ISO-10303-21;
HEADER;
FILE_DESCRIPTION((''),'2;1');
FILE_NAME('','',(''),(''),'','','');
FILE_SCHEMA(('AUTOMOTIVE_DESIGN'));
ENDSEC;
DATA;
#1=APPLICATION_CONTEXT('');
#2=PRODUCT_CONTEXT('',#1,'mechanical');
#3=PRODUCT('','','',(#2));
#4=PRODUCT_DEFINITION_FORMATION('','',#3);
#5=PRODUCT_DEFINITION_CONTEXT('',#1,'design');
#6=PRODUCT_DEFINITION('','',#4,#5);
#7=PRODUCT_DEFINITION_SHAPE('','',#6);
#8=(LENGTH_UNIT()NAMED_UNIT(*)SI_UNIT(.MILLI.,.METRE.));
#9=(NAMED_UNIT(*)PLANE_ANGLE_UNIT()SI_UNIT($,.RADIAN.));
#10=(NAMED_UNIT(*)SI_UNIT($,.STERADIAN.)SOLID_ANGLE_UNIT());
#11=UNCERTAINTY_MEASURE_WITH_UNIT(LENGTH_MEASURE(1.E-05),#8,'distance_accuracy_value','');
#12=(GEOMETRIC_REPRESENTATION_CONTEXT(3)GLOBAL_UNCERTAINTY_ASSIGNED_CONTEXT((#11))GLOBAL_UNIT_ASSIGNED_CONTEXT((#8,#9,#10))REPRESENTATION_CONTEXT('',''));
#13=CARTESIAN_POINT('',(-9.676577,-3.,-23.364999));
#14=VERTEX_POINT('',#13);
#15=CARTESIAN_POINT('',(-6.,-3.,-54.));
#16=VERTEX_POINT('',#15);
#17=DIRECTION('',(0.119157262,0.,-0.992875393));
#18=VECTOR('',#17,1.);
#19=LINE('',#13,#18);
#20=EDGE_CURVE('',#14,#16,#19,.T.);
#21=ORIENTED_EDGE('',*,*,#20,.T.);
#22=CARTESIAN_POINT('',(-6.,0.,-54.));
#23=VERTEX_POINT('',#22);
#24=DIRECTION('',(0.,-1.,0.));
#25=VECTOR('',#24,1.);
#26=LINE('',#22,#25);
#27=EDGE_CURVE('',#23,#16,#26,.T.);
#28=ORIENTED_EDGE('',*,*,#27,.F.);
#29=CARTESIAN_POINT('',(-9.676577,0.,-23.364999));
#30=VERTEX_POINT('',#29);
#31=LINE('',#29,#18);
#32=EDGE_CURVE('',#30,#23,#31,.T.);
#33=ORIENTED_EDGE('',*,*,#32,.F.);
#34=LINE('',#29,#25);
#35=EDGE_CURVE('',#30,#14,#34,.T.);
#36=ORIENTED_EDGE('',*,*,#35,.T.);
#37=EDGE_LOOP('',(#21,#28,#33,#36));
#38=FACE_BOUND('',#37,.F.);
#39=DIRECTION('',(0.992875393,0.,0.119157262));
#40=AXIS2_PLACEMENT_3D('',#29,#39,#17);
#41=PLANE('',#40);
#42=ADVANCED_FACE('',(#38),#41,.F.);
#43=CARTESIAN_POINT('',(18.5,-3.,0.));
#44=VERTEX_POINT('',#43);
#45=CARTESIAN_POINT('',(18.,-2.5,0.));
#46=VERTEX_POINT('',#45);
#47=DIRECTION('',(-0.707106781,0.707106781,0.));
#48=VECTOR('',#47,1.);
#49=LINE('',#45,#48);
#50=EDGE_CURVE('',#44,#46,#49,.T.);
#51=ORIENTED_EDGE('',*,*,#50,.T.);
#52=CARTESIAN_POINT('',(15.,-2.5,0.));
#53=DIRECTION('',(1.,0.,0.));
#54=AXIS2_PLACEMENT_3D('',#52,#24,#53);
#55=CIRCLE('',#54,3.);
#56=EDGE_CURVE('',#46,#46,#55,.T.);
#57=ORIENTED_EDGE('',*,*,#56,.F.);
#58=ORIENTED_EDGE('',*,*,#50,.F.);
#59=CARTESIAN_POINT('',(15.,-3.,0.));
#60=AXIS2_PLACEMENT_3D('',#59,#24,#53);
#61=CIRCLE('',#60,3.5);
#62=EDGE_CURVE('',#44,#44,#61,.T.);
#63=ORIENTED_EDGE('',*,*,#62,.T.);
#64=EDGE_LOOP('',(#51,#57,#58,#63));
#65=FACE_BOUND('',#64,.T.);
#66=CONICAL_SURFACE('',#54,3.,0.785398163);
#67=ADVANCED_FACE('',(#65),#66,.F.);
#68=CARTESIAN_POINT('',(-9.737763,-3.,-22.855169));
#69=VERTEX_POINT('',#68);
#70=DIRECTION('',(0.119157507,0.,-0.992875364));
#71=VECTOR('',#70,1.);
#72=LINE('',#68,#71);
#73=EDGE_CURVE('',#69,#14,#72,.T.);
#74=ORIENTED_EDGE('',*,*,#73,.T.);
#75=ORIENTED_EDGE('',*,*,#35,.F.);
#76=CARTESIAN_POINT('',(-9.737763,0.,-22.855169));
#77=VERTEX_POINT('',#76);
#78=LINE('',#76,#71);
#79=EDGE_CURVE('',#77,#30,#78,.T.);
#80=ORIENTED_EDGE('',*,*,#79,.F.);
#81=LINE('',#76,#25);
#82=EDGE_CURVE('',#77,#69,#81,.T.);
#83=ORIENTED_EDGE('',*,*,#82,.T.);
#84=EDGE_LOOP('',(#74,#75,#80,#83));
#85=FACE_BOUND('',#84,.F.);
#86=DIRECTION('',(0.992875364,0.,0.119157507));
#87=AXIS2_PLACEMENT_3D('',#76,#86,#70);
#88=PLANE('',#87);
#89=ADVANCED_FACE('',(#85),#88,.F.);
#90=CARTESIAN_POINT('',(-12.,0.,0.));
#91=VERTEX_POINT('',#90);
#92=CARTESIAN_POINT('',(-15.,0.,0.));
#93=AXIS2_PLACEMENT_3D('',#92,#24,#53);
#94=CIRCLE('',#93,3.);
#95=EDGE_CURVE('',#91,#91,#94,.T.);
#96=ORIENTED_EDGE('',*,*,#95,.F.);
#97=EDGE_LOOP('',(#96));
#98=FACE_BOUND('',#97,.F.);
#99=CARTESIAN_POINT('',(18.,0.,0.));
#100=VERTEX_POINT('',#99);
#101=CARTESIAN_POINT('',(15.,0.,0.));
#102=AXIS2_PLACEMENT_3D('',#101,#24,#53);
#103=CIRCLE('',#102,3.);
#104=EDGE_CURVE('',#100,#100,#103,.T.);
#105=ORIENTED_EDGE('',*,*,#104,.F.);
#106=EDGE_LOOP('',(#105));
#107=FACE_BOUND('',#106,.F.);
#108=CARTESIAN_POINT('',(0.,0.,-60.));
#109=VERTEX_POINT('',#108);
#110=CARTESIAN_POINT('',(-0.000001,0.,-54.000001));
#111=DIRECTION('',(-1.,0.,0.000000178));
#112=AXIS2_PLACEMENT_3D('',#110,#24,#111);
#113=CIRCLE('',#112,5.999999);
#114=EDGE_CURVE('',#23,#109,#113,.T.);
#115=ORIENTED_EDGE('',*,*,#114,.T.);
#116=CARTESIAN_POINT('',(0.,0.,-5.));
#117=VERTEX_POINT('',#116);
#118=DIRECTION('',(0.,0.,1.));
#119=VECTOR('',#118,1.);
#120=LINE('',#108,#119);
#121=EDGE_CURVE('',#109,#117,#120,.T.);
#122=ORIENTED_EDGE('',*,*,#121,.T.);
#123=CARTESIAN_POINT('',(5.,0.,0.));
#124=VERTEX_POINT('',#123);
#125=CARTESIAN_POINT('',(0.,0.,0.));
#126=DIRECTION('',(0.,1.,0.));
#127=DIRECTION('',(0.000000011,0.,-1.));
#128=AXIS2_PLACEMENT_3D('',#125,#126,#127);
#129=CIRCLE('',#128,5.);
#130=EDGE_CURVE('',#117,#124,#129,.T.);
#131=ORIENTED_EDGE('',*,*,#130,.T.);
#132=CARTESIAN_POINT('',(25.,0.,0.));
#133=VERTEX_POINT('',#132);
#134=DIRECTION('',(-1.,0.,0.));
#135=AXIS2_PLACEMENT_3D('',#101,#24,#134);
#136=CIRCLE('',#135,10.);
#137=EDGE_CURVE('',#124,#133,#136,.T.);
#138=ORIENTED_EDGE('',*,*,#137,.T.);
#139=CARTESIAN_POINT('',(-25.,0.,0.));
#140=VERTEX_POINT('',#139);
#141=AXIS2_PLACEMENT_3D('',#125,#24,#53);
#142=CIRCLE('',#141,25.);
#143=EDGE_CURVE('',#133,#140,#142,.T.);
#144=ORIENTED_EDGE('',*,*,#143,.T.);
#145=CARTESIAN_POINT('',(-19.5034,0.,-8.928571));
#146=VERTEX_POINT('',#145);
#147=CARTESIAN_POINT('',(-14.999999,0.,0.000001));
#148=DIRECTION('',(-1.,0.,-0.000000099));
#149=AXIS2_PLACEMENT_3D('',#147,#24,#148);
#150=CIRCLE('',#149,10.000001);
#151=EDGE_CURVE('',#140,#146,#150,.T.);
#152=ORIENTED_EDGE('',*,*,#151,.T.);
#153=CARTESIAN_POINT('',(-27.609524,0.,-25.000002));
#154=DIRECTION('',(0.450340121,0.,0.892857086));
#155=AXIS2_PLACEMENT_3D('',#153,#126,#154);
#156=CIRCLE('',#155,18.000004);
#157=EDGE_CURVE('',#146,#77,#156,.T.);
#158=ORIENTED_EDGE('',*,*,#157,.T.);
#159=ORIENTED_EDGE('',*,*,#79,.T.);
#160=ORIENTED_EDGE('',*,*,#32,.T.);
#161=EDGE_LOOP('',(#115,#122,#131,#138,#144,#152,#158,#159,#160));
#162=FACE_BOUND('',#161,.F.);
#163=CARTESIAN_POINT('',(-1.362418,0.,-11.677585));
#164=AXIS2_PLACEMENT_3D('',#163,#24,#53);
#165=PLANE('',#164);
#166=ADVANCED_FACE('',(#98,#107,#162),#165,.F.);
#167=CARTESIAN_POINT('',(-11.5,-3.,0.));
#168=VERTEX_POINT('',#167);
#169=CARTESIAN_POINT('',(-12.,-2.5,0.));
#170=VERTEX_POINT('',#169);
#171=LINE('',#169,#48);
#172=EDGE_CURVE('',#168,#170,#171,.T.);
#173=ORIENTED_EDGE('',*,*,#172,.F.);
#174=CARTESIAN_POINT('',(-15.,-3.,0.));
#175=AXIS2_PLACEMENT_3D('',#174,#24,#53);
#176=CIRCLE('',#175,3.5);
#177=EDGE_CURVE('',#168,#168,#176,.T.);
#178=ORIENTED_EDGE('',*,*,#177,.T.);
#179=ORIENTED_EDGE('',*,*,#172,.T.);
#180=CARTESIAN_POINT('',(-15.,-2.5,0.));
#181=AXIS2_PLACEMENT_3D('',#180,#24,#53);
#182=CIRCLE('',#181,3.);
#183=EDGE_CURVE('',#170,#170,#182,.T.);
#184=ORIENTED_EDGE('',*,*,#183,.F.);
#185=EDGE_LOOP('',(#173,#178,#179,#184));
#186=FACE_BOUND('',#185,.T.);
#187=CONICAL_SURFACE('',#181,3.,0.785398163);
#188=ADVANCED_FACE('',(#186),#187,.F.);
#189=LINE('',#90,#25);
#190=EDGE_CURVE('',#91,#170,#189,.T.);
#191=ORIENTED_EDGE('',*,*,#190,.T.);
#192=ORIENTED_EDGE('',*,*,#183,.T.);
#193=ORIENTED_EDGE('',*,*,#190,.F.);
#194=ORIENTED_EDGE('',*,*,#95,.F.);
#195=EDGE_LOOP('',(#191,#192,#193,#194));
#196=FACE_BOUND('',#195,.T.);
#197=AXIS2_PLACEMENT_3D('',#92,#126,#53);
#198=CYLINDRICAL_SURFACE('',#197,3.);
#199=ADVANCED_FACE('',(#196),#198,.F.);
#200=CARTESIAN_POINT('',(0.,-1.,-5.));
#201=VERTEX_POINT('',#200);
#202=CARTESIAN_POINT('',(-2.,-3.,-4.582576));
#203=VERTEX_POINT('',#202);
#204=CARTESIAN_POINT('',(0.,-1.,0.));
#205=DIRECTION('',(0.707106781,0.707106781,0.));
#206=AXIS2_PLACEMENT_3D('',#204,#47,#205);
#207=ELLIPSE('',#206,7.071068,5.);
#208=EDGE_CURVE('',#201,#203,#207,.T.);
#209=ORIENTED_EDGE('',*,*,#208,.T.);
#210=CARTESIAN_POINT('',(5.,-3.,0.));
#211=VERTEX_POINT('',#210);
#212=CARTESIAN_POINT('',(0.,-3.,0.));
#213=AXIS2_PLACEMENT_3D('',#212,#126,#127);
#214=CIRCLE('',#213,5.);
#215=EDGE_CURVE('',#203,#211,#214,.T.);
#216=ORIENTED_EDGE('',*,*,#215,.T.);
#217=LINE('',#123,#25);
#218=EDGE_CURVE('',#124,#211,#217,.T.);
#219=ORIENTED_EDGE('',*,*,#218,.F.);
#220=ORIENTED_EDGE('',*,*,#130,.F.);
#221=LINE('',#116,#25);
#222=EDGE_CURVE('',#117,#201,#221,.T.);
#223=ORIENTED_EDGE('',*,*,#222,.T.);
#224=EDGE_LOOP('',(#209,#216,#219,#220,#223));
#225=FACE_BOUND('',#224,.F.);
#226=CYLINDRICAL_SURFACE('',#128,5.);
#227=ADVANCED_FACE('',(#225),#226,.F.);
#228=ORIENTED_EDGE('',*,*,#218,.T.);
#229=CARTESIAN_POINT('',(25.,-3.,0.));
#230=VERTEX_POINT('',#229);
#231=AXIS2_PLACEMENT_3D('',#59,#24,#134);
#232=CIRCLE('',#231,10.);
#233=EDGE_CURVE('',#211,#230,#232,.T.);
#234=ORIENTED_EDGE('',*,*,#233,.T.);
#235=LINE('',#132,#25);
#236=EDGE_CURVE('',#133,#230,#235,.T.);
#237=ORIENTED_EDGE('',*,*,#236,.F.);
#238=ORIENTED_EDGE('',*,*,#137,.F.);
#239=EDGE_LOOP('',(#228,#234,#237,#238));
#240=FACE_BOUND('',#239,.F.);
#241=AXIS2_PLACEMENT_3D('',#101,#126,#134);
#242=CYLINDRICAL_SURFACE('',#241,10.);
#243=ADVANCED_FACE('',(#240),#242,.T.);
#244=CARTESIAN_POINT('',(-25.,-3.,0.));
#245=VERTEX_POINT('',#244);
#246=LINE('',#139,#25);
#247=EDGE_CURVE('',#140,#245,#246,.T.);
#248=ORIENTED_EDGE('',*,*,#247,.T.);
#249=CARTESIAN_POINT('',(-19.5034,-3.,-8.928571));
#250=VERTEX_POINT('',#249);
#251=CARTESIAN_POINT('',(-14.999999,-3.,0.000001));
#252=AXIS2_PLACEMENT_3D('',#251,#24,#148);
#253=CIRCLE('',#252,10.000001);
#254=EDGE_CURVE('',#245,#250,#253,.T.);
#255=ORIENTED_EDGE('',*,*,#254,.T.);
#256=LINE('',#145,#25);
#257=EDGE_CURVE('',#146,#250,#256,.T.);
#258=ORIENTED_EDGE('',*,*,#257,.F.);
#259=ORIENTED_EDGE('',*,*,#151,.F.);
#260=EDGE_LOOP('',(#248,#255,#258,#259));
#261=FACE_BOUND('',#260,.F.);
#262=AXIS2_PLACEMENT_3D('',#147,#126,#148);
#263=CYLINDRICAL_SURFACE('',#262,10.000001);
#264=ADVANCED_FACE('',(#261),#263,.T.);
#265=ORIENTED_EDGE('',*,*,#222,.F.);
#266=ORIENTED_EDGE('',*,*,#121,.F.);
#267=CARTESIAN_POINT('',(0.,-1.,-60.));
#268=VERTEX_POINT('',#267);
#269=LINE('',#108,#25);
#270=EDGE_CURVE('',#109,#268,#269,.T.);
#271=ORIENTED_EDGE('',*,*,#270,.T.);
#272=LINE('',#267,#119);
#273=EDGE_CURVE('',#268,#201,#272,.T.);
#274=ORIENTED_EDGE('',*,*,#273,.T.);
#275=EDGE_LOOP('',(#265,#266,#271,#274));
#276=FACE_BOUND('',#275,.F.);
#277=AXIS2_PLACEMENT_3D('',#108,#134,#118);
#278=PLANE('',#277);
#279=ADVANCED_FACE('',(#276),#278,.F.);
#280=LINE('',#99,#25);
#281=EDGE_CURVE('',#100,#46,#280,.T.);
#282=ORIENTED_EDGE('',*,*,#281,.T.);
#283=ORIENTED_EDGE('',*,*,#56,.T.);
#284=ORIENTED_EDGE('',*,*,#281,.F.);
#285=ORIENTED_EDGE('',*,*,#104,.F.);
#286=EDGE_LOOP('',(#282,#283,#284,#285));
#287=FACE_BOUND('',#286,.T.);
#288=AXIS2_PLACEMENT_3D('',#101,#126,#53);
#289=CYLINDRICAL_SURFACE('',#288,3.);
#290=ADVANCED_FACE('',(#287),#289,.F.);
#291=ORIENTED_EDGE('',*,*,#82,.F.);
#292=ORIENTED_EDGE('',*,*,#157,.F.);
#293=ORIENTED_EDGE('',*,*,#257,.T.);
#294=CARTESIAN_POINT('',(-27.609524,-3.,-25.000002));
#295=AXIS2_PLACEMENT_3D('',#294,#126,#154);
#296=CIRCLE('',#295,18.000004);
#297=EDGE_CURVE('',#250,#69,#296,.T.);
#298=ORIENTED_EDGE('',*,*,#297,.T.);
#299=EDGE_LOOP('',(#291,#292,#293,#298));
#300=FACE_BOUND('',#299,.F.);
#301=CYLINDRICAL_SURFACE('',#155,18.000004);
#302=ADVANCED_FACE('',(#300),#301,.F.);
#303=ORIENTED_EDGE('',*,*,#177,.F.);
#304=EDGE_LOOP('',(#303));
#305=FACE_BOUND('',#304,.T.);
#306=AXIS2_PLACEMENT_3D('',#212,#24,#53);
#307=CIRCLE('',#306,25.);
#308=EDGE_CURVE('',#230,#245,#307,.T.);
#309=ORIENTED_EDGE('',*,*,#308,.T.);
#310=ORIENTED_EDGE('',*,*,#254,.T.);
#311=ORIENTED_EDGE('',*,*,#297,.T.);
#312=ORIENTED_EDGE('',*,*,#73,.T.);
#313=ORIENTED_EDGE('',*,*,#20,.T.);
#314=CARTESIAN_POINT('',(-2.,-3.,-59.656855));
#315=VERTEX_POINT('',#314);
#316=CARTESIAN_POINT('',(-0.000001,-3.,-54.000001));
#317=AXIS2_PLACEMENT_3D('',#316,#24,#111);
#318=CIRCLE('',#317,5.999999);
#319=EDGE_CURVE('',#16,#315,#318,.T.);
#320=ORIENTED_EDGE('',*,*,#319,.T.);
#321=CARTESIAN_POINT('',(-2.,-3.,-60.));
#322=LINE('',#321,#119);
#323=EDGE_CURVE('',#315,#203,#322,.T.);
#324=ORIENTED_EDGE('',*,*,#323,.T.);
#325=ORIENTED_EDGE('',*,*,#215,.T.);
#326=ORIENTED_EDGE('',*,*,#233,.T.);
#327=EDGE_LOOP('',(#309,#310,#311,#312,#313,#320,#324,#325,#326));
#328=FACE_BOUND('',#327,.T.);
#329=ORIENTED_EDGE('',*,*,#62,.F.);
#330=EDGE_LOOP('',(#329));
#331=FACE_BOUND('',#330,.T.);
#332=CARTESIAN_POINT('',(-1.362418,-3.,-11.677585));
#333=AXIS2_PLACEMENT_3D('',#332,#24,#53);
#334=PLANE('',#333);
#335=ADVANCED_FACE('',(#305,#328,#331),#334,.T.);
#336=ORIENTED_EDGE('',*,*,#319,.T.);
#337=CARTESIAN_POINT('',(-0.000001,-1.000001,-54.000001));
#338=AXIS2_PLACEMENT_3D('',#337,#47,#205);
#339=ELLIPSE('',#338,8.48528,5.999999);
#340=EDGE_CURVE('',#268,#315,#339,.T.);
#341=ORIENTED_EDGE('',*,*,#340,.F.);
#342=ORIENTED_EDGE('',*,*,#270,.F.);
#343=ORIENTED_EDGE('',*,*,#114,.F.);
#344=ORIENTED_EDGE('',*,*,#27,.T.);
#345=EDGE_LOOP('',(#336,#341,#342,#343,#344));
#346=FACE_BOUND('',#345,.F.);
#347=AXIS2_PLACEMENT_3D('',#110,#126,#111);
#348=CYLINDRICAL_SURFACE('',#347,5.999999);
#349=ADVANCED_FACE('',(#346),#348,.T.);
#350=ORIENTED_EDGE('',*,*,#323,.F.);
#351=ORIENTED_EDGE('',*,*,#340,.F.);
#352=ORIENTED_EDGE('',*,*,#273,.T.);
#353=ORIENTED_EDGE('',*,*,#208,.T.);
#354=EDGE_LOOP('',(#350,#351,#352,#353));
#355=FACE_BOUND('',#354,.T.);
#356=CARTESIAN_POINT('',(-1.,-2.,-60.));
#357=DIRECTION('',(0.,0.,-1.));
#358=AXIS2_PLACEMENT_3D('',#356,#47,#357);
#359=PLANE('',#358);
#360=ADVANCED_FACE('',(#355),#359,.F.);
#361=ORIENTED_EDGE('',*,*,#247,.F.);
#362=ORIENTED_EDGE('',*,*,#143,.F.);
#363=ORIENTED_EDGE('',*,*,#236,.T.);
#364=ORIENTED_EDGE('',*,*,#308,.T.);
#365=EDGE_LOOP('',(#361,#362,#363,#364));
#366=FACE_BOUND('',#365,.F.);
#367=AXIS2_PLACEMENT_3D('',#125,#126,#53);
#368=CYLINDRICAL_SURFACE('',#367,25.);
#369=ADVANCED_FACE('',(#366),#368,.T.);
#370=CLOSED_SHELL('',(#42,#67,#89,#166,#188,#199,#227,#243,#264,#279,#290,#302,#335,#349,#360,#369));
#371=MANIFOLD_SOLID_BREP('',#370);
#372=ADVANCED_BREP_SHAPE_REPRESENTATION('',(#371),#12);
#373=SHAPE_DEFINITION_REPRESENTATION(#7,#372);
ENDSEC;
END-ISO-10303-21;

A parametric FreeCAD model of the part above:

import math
import FreeCAD as App
import Part
import Sketcher
Q = App.Units.Quantity


def edges_at(feature, points):
    """Names of the edges that pass closest to the given points."""
    edges = feature.Shape.Edges
    near = lambda p: min(range(len(edges)), key=lambda i: edges[i].distToShape(Part.Vertex(*p))[0])
    return sorted({f"Edge{near(p) + 1}" for p in points})

doc = App.newDocument("Part")
body = doc.addObject("PartDesign::Body", "Body")

# Sketch on XZ plane
sketch1 = doc.addObject("Sketcher::SketchObject", "Sketch")
body.addObject(sketch1)
sketch1.AttachmentSupport = (doc.XZ_Plane, [""])
sketch1.MapMode = "FlatFace"
sketch1.addGeometry([
    Part.ArcOfCircle(Part.Circle(App.Vector(0, 0, 0), App.Vector(0, 0, 1), 5), math.radians(0), math.radians(270)),  # 0
    Part.ArcOfCircle(Part.Circle(App.Vector(15, 0, 0), App.Vector(0, 0, 1), 10), math.radians(180), math.radians(360)),  # 1
    Part.ArcOfCircle(Part.Circle(App.Vector(0, 0, 0), App.Vector(0, 0, 1), 25), math.radians(0), math.radians(180)),  # 2
    Part.ArcOfCircle(Part.Circle(App.Vector(-15, 0, 0), App.Vector(0, 0, 1), 10), math.radians(-180), math.radians(-117)),  # 3
    Part.ArcOfCircle(Part.Circle(App.Vector(-27.6, -25, 0), App.Vector(0, 0, 1), 18), math.radians(7), math.radians(63)),  # 4
    Part.LineSegment(App.Vector(-9.7, -22.9, 0), App.Vector(-9.7, -23.4, 0)),  # 5
    Part.LineSegment(App.Vector(-9.7, -23.4, 0), App.Vector(-6, -54, 0)),  # 6
    Part.ArcOfCircle(Part.Circle(App.Vector(0, -54, 0), App.Vector(0, 0, 1), 6), math.radians(180), math.radians(270)),  # 7
    Part.LineSegment(App.Vector(0, -60, 0), App.Vector(0, -5, 0)),  # 8
    Part.Circle(App.Vector(-15, 0, 0), App.Vector(0, 0, 1), 3),  # 9
    Part.Circle(App.Vector(15, 0, 0), App.Vector(0, 0, 1), 3),  # 10
], False)
sketch1.addConstraint([
    Sketcher.Constraint("Tangent", 0, 1, 1, 1),
    Sketcher.Constraint("Tangent", 1, 2, 2, 1),
    Sketcher.Constraint("Tangent", 2, 2, 3, 1),
    Sketcher.Constraint("Tangent", 3, 2, 4, 2),
    Sketcher.Constraint("Tangent", 4, 1, 5, 1),
    Sketcher.Constraint("Coincident", 5, 2, 6, 1),
    Sketcher.Constraint("Coincident", 6, 2, 7, 1),
    Sketcher.Constraint("Coincident", 7, 2, 8, 1),
    Sketcher.Constraint("Coincident", 8, 2, 0, 2),
    Sketcher.Constraint("Vertical", 8),
    Sketcher.Constraint("Coincident", 0, 3, -1, 1),
    Sketcher.Constraint("Coincident", 2, 3, -1, 1),
    Sketcher.Constraint("Coincident", 9, 3, 3, 3),
    Sketcher.Constraint("Coincident", 10, 3, 1, 3),
    Sketcher.Constraint("Equal", 1, 3),
    Sketcher.Constraint("Equal", 9, 10),
    Sketcher.Constraint("PointOnObject", 1, 3, -1),
    Sketcher.Constraint("PointOnObject", 3, 3, -1),
    Sketcher.Constraint("PointOnObject", 7, 3, -2),
    Sketcher.Constraint("PointOnObject", 7, 2, -2),
    Sketcher.Constraint("Parallel", 5, 6),
    Sketcher.Constraint("Horizontal", 7, 3, 6, 2),
    Sketcher.Constraint("Diameter", 9, Q("6 mm")),
    Sketcher.Constraint("Radius", 0, Q("5 mm")),
    Sketcher.Constraint("Radius", 1, Q("10 mm")),
    Sketcher.Constraint("Radius", 7, Q("5.999999 mm")),
    Sketcher.Constraint("DistanceY", 8, 1, 8, 2, Q("55 mm")),
    Sketcher.Constraint("DistanceY", 7, 3, 4, 3, Q("28.999999 mm")),
    Sketcher.Constraint("DistanceY", 5, 2, -1, 1, Q("23.364999 mm")),
    Sketcher.Constraint("Radius", 4, Q("18.000004 mm")),
])
pad1 = doc.addObject("PartDesign::Pad", "Pad")
body.addObject(pad1)
pad1.Profile = sketch1
pad1.Length = 3
doc.recompute()

chamfer = doc.addObject("PartDesign::Chamfer", "Chamfer")
body.addObject(chamfer)
chamfer.Base = (pad1, edges_at(pad1, [(0, -3, -32.5)]))
chamfer.Size = 2
doc.recompute()

chamfer2 = doc.addObject("PartDesign::Chamfer", "Chamfer001")
body.addObject(chamfer2)
chamfer2.Base = (chamfer, edges_at(chamfer, [(-18, -3, 0), (12, -3, 0)]))
chamfer2.Size = 0.5

doc.recompute()
